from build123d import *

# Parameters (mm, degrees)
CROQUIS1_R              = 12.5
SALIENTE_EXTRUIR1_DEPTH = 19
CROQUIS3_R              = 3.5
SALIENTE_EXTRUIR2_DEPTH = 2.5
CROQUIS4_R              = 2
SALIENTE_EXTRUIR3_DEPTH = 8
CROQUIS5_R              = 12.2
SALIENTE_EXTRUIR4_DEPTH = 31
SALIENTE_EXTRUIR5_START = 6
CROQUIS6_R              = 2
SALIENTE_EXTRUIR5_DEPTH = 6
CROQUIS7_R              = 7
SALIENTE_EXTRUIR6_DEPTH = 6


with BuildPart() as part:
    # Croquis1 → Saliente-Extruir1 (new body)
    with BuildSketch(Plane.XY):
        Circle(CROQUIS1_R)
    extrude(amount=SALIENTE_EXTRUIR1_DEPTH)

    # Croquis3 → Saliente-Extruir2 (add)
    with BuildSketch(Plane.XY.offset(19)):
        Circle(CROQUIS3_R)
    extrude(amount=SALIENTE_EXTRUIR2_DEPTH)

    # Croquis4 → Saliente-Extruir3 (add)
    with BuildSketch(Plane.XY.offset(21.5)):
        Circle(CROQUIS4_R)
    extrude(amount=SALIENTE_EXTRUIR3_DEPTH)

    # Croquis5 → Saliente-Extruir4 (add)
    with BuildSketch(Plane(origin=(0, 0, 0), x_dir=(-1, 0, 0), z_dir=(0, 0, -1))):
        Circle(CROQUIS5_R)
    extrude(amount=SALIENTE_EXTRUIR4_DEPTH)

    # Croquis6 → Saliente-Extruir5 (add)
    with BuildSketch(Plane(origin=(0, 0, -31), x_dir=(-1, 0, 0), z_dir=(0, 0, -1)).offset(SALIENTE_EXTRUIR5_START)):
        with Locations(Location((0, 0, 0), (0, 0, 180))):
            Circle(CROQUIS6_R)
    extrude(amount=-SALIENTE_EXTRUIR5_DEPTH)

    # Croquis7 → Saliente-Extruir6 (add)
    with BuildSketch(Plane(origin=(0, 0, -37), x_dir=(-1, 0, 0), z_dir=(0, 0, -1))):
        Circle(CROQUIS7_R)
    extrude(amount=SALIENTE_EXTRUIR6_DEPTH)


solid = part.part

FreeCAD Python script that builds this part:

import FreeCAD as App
import Part
import Sketcher

V = App.Vector

doc = App.newDocument("Part")
body = doc.addObject("PartDesign::Body", "Body")

# Sketch on XY plane
sketch1 = body.newObject("Sketcher::SketchObject", "Sketch")
sketch1.AttachmentSupport = (doc.getObject("XY_Plane"), [""])
sketch1.MapMode = "FlatFace"
sketch1.addGeometry(Part.Circle(V(0, 0, 0), V(0, 0, 1), 12), False)
sketch1.addConstraint(Sketcher.Constraint("Coincident", 0, 3, -1, 1))
sketch1.addConstraint(Sketcher.Constraint("Diameter", 0, 25.0))
pad1 = body.newObject("PartDesign::Pad", "Pad")
pad1.Profile = sketch1
pad1.Length = 19

# Sketch on XY plane
sketch2 = body.newObject("Sketcher::SketchObject", "Sketch001")
sketch2.AttachmentSupport = (doc.getObject("XY_Plane"), [""])
sketch2.MapMode = "FlatFace"
sketch2.AttachmentOffset = App.Placement(V(0, 0, 19), App.Rotation())
sketch2.addGeometry(Part.Circle(V(0, 0, 0), V(0, 0, 1), 3.5), False)
sketch2.addConstraint(Sketcher.Constraint("Coincident", 0, 3, -1, 1))
sketch2.addConstraint(Sketcher.Constraint("Diameter", 0, 7.0))
pad2 = body.newObject("PartDesign::Pad", "Pad001")
pad2.Profile = sketch2
pad2.Length = 2.5

# Sketch on XY plane
sketch3 = body.newObject("Sketcher::SketchObject", "Sketch002")
sketch3.AttachmentSupport = (doc.getObject("XY_Plane"), [""])
sketch3.MapMode = "FlatFace"
sketch3.AttachmentOffset = App.Placement(V(0, 0, 21.5), App.Rotation())
sketch3.addGeometry(Part.Circle(V(0, 0, 0), V(0, 0, 1), 2), False)
sketch3.addConstraint(Sketcher.Constraint("Coincident", 0, 3, -1, 1))
sketch3.addConstraint(Sketcher.Constraint("Diameter", 0, 4.0))
pad3 = body.newObject("PartDesign::Pad", "Pad002")
pad3.Profile = sketch3
pad3.Length = 8

# Sketch on XY plane
sketch4 = body.newObject("Sketcher::SketchObject", "Sketch003")
sketch4.AttachmentSupport = (doc.getObject("XY_Plane"), [""])
sketch4.MapMode = "FlatFace"
sketch4.addGeometry(Part.Circle(V(0, 0, 0), V(0, 0, 1), 12), False)
sketch4.addConstraint(Sketcher.Constraint("Coincident", 0, 3, -1, 1))
sketch4.addConstraint(Sketcher.Constraint("Diameter", 0, 24.4))
pad4 = body.newObject("PartDesign::Pad", "Pad003")
pad4.Profile = sketch4
pad4.Length = 31
pad4.Reversed = True

# Sketch on XY plane
sketch5 = body.newObject("Sketcher::SketchObject", "Sketch004")
sketch5.AttachmentSupport = (doc.getObject("XY_Plane"), [""])
sketch5.MapMode = "FlatFace"
sketch5.AttachmentOffset = App.Placement(V(0, 0, -37), App.Rotation())
sketch5.addGeometry(Part.Circle(V(0, 0, 0), V(0, 0, 1), 2), False)
sketch5.addConstraint(Sketcher.Constraint("Coincident", 0, 3, -1, 1))
sketch5.addConstraint(Sketcher.Constraint("Diameter", 0, 4.0))
pad5 = body.newObject("PartDesign::Pad", "Pad004")
pad5.Profile = sketch5
pad5.Length = 6

# Sketch on XY plane
sketch6 = body.newObject("Sketcher::SketchObject", "Sketch005")
sketch6.AttachmentSupport = (doc.getObject("XY_Plane"), [""])
sketch6.MapMode = "FlatFace"
sketch6.AttachmentOffset = App.Placement(V(0, 0, -37), App.Rotation())
sketch6.addGeometry(Part.Circle(V(0, 0, 0), V(0, 0, 1), 7), False)
sketch6.addConstraint(Sketcher.Constraint("Coincident", 0, 3, -1, 1))
sketch6.addConstraint(Sketcher.Constraint("Diameter", 0, 14.0))
pad6 = body.newObject("PartDesign::Pad", "Pad005")
pad6.Profile = sketch6
pad6.Length = 6
pad6.Reversed = True

doc.recompute()
